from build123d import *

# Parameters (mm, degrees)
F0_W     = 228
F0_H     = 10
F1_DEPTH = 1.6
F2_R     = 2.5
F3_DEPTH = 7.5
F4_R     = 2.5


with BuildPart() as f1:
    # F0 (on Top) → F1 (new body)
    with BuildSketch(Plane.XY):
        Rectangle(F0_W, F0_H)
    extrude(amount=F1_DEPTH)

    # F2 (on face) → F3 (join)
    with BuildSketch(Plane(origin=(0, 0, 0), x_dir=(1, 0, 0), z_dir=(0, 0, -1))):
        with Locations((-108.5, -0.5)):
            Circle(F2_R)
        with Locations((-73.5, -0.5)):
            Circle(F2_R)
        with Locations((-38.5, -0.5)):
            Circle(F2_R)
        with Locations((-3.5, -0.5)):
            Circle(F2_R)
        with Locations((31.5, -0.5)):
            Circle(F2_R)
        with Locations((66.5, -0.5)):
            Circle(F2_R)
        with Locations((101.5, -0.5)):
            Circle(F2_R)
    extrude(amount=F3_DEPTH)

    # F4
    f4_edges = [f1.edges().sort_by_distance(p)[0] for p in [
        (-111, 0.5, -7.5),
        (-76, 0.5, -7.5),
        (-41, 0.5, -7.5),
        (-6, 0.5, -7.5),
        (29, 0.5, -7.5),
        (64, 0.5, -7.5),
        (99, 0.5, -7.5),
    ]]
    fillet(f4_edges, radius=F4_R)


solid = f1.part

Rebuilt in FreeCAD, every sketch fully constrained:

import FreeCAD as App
import Part
import Sketcher


def edges_at(feature, points):
    """Names of the edges that pass closest to the given points."""
    edges = feature.Shape.Edges
    near = lambda p: min(range(len(edges)), key=lambda i: edges[i].distToShape(Part.Vertex(*p))[0])
    return sorted({f"Edge{near(p) + 1}" for p in points})

doc = App.newDocument("Part")
body = doc.addObject("PartDesign::Body", "Body")

# Sketch on XY plane
sketch1 = doc.addObject("Sketcher::SketchObject", "Sketch")
body.addObject(sketch1)
sketch1.AttachmentSupport = (doc.XY_Plane, [""])
sketch1.MapMode = "FlatFace"
sketch1.addGeometry([
    Part.LineSegment(App.Vector(-114, 5, 0), App.Vector(-114, -5, 0)),
    Part.LineSegment(App.Vector(-114, -5, 0), App.Vector(114, -5, 0)),
    Part.LineSegment(App.Vector(114, -5, 0), App.Vector(114, 5, 0)),
    Part.LineSegment(App.Vector(114, 5, 0), App.Vector(-114, 5, 0)),
], False)
sketch1.addConstraint([
    Sketcher.Constraint("Coincident", 0, 2, 1, 1),
    Sketcher.Constraint("Coincident", 1, 2, 2, 1),
    Sketcher.Constraint("Coincident", 2, 2, 3, 1),
    Sketcher.Constraint("Coincident", 3, 2, 0, 1),
    Sketcher.Constraint("Vertical", 0),
    Sketcher.Constraint("Horizontal", 1),
    Sketcher.Constraint("Vertical", 2),
    Sketcher.Constraint("Horizontal", 3),
    Sketcher.Constraint("Symmetric", 0, 2, 2, 2, -1, 1),
    Sketcher.Constraint("DistanceX", 1, 1, 1, 2, 228.0),
    Sketcher.Constraint("DistanceY", 0, 2, 0, 1, 10.0),
])
pad1 = doc.addObject("PartDesign::Pad", "Pad")
body.addObject(pad1)
pad1.Profile = sketch1
pad1.Length = 1.6

# Sketch on XY plane
sketch2 = doc.addObject("Sketcher::SketchObject", "Sketch001")
body.addObject(sketch2)
sketch2.AttachmentSupport = (doc.XY_Plane, [""])
sketch2.MapMode = "FlatFace"
sketch2.addGeometry([
    Part.Circle(App.Vector(-108.5, 0.5, 0), App.Vector(0, 0, 1), 2.5),  # 0
    Part.Circle(App.Vector(-73.5, 0.5, 0), App.Vector(0, 0, 1), 2.5),  # 1
    Part.Circle(App.Vector(-38.5, 0.5, 0), App.Vector(0, 0, 1), 2.5),  # 2
    Part.Circle(App.Vector(-3.5, 0.5, 0), App.Vector(0, 0, 1), 2.5),  # 3
    Part.Circle(App.Vector(31.5, 0.5, 0), App.Vector(0, 0, 1), 2.5),  # 4
    Part.Circle(App.Vector(66.5, 0.5, 0), App.Vector(0, 0, 1), 2.5),  # 5
    Part.Circle(App.Vector(101.5, 0.5, 0), App.Vector(0, 0, 1), 2.5),  # 6
], False)
sketch2.addConstraint([
    Sketcher.Constraint("Equal", 0, 1),
    Sketcher.Constraint("Equal", 1, 2),
    Sketcher.Constraint("Equal", 2, 3),
    Sketcher.Constraint("Equal", 3, 4),
    Sketcher.Constraint("Equal", 4, 5),
    Sketcher.Constraint("Equal", 5, 6),
    Sketcher.Constraint("Horizontal", 0, 3, 1, 3),
    Sketcher.Constraint("Horizontal", 1, 3, 2, 3),
    Sketcher.Constraint("Horizontal", 2, 3, 3, 3),
    Sketcher.Constraint("Horizontal", 3, 3, 4, 3),
    Sketcher.Constraint("Horizontal", 4, 3, 5, 3),
    Sketcher.Constraint("Horizontal", 5, 3, 6, 3),
    Sketcher.Constraint("Diameter", 0, 5.0),
    Sketcher.Constraint("DistanceX", 0, 3, 1, 3, 35.0),
    Sketcher.Constraint("DistanceX", 1, 3, 2, 3, 35.0),
    Sketcher.Constraint("DistanceX", 2, 3, 3, 3, 35.0),
    Sketcher.Constraint("DistanceX", 3, 3, 4, 3, 35.0),
    Sketcher.Constraint("DistanceX", 4, 3, 5, 3, 35.0),
    Sketcher.Constraint("DistanceX", 5, 3, 6, 3, 35.0),
    Sketcher.Constraint("DistanceX", 0, 3, -1, 1, 108.5),
    Sketcher.Constraint("DistanceY", -1, 1, 0, 3, 0.5),
])
pad2 = doc.addObject("PartDesign::Pad", "Pad001")
body.addObject(pad2)
pad2.Profile = sketch2
pad2.Length = 7.5
pad2.Reversed = True
doc.recompute()

fillet = doc.addObject("PartDesign::Fillet", "Fillet")
body.addObject(fillet)
fillet.Base = (pad2, edges_at(pad2, [
    (-111, 0.5, -7.5),
    (-76, 0.5, -7.5),
    (-41, 0.5, -7.5),
    (-6, 0.5, -7.5),
    (29, 0.5, -7.5),
    (64, 0.5, -7.5),
    (99, 0.5, -7.5),
]))
fillet.Radius = 2.5

doc.recompute()
